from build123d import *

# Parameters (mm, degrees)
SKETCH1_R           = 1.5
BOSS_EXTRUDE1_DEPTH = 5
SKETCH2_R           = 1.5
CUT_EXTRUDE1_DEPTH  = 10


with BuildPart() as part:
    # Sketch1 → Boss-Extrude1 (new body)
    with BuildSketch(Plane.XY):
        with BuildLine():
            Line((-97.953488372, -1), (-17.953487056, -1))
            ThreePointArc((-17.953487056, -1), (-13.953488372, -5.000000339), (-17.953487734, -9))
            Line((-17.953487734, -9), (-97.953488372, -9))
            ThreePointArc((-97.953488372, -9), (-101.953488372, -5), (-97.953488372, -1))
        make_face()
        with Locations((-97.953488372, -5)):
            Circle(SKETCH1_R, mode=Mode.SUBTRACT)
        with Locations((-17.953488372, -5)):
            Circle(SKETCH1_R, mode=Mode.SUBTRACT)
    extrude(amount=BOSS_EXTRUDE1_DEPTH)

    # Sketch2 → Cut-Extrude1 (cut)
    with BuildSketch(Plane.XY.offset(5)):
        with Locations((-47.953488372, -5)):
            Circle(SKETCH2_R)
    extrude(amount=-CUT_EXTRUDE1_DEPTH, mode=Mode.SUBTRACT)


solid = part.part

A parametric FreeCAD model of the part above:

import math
import FreeCAD as App
import Part
import Sketcher

V = App.Vector
Q = App.Units.Quantity

doc = App.newDocument("Part")
body = doc.addObject("PartDesign::Body", "Body")

sketch1 = doc.addObject("Sketcher::SketchObject", "Sketch")
body.addObject(sketch1)
sketch1.AttachmentSupport = (doc.XY_Plane, [""])
sketch1.MapMode = "FlatFace"
sketch1.addGeometry([
    Part.LineSegment(V(-18, -1, 0), V(-98, -1, 0)),
    Part.ArcOfCircle(Part.Circle(V(-98, -5, 0), V(0, 0, 1), 4), math.radians(90), math.radians(270)),
    Part.LineSegment(V(-98, -9, 0), V(-18, -9, 0)),
    Part.ArcOfCircle(Part.Circle(V(-18, -5, 0), V(0, 0, 1), 4), math.radians(-90), math.radians(90)),
    Part.Circle(V(-18, -5, 0), V(0, 0, 1), 1.5),
    Part.Circle(V(-98, -5, 0), V(0, 0, 1), 1.5),
], False)
sketch1.addConstraint([
    Sketcher.Constraint("Tangent", 0, 2, 1, 1),
    Sketcher.Constraint("Tangent", 1, 2, 2, 1),
    Sketcher.Constraint("Tangent", 2, 2, 3, 1),
    Sketcher.Constraint("Tangent", 3, 2, 0, 1),
    Sketcher.Constraint("Horizontal", 0),
    Sketcher.Constraint("Horizontal", 2),
    Sketcher.Constraint("Coincident", 4, 3, 3, 3),
    Sketcher.Constraint("Coincident", 5, 3, 1, 3),
    Sketcher.Constraint("Equal", 4, 5),
    Sketcher.Constraint("Diameter", 4, Q("3 mm")),
    Sketcher.Constraint("Radius", 1, Q("4 mm")),
    Sketcher.Constraint("DistanceX", 0, 2, 0, 1, Q("80.000001 mm")),
    Sketcher.Constraint("DistanceY", 1, 3, -1, 1, Q("5 mm")),
    Sketcher.Constraint("DistanceX", 1, 3, -1, 1, Q("97.953488 mm")),
])
pad1 = doc.addObject("PartDesign::Pad", "Pad")
body.addObject(pad1)
pad1.Profile = sketch1
pad1.Length = 5

sketch2 = doc.addObject("Sketcher::SketchObject", "Sketch001")
body.addObject(sketch2)
sketch2.AttachmentSupport = (doc.XY_Plane, [""])
sketch2.MapMode = "FlatFace"
sketch2.AttachmentOffset = App.Placement(V(0, 0, 5), App.Rotation())
sketch2.addGeometry(Part.Circle(V(-48, -5, 0), V(0, 0, 1), 1.5), False)
sketch2.addConstraint([
    Sketcher.Constraint("Diameter", 0, Q("3 mm")),
    Sketcher.Constraint("DistanceY", 0, 3, -1, 1, Q("5 mm")),
    Sketcher.Constraint("DistanceX", 0, 3, -1, 1, Q("47.953488 mm")),
])
pocket1 = doc.addObject("PartDesign::Pocket", "Pocket")
body.addObject(pocket1)
pocket1.Profile = sketch2
pocket1.Length = 10

doc.recompute()
